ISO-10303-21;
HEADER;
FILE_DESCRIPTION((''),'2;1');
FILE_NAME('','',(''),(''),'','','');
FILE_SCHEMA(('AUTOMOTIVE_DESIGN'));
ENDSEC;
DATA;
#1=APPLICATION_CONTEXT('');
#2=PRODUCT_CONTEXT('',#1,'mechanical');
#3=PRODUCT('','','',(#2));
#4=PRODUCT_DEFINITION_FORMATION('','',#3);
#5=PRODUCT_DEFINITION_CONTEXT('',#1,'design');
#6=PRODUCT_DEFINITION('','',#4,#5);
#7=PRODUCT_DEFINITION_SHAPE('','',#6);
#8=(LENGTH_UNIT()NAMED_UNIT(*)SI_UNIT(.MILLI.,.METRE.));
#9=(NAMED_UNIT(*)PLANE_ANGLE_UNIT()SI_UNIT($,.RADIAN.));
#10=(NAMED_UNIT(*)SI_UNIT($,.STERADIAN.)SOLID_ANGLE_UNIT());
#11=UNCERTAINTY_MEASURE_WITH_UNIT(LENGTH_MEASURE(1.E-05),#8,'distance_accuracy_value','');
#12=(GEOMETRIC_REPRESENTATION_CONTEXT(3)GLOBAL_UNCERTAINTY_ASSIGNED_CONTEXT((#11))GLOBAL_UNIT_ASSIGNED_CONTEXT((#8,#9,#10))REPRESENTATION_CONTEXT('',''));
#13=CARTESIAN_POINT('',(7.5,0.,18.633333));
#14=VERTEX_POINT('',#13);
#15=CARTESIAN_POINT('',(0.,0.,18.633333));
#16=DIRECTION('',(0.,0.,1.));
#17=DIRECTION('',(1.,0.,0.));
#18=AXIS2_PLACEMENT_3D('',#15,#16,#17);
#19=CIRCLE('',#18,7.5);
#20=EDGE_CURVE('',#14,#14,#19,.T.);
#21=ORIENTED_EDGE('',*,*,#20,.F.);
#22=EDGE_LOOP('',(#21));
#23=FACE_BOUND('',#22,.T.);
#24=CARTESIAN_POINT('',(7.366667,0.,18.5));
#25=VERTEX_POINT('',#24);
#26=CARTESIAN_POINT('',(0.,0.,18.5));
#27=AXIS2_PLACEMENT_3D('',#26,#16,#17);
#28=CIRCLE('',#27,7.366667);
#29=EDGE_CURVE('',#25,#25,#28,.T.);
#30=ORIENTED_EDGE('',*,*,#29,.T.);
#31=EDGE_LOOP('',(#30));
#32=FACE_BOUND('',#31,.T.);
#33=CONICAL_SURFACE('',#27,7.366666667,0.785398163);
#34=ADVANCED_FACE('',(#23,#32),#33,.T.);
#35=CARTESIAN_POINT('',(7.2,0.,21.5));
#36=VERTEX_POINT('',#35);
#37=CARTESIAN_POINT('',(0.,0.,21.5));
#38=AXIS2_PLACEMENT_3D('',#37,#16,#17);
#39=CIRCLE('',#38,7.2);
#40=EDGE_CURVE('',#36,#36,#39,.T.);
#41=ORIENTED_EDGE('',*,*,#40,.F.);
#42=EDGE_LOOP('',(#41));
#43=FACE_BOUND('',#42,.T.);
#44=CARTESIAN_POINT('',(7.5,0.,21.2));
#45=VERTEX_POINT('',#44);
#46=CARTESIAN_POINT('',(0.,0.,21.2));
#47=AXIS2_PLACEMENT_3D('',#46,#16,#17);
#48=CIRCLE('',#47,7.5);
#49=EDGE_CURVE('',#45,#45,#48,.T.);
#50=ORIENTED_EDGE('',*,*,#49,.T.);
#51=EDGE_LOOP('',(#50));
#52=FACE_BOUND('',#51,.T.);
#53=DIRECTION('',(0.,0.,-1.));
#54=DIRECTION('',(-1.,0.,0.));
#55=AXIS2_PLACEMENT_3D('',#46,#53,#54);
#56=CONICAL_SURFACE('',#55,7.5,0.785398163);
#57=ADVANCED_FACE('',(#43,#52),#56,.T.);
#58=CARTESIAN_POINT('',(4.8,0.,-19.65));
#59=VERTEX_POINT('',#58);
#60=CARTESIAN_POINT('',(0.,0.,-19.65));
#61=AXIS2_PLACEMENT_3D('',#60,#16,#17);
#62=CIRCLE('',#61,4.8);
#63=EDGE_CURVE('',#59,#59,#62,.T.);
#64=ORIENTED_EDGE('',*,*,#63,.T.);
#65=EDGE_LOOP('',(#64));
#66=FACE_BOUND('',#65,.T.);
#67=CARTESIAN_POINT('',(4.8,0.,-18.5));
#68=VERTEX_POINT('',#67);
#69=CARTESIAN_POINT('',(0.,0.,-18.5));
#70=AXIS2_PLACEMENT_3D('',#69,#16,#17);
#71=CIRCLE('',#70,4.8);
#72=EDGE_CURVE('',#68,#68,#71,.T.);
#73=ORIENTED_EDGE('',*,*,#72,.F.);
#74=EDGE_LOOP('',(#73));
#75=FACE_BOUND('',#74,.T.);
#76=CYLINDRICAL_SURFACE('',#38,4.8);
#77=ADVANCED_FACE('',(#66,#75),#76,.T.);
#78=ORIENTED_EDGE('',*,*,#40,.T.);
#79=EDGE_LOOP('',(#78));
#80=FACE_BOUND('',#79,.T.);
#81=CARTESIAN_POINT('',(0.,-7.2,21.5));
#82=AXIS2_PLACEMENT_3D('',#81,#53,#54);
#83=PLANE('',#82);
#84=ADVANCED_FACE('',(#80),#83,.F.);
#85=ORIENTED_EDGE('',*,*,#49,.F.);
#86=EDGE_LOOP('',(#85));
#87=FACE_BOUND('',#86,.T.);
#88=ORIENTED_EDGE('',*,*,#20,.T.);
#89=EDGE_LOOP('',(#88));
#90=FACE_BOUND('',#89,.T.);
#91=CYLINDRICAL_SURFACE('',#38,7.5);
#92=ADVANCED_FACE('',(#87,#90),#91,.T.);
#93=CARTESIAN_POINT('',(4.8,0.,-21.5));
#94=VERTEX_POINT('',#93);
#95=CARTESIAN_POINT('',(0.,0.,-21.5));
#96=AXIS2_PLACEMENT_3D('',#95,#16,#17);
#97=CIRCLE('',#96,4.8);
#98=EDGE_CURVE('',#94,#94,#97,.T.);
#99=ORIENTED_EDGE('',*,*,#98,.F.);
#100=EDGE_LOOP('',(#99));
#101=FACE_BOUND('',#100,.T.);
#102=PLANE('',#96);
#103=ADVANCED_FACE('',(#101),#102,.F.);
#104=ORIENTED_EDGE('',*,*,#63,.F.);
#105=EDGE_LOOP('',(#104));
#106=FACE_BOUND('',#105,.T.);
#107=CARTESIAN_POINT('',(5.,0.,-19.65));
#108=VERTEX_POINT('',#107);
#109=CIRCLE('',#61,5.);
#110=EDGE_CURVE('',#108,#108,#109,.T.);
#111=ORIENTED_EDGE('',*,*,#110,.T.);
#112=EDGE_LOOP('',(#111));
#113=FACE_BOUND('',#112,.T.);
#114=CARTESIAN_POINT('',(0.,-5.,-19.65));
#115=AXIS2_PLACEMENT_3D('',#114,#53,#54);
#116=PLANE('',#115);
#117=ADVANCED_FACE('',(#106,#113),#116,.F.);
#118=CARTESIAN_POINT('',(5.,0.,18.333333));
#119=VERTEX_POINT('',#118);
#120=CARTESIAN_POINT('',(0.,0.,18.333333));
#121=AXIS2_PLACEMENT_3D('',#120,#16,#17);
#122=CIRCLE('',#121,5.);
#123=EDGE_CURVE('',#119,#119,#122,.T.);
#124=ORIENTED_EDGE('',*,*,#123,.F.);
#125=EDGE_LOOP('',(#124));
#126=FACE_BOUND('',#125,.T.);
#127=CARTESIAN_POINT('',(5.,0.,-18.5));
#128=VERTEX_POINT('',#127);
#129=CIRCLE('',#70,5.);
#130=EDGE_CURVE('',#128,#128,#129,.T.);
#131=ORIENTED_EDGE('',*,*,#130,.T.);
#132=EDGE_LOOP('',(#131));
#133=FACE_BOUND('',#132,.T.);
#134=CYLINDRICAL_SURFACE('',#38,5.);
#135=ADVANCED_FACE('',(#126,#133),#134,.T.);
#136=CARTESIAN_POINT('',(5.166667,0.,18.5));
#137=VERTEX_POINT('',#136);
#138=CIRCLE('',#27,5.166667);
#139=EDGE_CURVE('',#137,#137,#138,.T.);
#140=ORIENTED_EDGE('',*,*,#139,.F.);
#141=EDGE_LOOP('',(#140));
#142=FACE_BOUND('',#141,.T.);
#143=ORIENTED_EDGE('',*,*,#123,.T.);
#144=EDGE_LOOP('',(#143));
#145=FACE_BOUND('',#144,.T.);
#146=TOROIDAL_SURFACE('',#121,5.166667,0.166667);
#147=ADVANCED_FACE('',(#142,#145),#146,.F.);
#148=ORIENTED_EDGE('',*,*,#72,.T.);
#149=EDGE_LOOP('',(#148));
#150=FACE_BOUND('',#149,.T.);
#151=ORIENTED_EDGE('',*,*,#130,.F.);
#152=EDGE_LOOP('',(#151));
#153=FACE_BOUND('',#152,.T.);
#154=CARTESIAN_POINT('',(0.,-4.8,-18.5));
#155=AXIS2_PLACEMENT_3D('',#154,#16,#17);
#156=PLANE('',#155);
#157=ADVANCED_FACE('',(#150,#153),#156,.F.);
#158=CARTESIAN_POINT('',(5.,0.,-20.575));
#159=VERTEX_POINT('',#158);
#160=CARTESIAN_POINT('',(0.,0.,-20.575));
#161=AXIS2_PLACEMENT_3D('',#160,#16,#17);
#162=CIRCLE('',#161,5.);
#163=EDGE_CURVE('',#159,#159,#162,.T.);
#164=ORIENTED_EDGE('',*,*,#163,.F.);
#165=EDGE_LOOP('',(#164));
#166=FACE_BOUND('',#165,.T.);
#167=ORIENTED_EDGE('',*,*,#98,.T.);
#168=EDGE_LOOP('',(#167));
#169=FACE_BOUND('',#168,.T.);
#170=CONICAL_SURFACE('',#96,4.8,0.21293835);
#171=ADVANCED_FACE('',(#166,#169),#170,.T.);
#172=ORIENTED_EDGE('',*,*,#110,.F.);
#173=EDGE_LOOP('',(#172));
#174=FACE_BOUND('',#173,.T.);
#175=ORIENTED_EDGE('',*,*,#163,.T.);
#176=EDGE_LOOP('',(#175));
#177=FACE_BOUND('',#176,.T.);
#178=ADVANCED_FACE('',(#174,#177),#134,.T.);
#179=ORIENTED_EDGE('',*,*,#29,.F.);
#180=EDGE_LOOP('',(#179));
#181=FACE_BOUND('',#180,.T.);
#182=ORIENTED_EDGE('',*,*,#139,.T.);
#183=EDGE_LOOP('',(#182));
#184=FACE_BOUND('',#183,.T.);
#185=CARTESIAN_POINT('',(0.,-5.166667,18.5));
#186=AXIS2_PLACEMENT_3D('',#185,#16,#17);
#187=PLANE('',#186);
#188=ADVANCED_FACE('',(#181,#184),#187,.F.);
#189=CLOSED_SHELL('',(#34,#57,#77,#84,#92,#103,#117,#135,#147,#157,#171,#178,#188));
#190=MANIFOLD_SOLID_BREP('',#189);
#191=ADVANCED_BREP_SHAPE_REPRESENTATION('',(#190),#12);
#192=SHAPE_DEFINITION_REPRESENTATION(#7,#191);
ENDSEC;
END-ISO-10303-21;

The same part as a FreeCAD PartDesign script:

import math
import FreeCAD as App
import Part
import Sketcher
Q = App.Units.Quantity

doc = App.newDocument("Part")
params = doc.addObject("Spreadsheet::Sheet", "Params")
for row, (alias, value) in enumerate([
    ("sketch1_height", "43 mm"),
    ("sketch1_width", "4.8 mm"),
    ("sketch1_width2", "0.2 mm"),
    ("sketch1_width3", "2.2 mm"),
    ("sketch1_width4", "7.2 mm"),
    ("revolution_angle", "360 deg"),
], start=1):
    params.set(f"A{row}", alias)
    params.set(f"B{row}", "=" + value)
    params.setAlias(f"B{row}", alias)

body = doc.addObject("PartDesign::Body", "Body")

sketch1 = doc.addObject("Sketcher::SketchObject", "Sketch")
body.addObject(sketch1)
sketch1.AttachmentSupport = (doc.YZ_Plane, [""])
sketch1.MapMode = "FlatFace"
sketch1.addGeometry(Part.LineSegment(App.Vector(0, -21.5, 0), App.Vector(4.8, -21.5, 0)), False)
sketch1.addGeometry(Part.LineSegment(App.Vector(4.8, -21.5, 0), App.Vector(5, -20.57, 0)), False)
sketch1.addGeometry(Part.LineSegment(App.Vector(5, -20.57, 0), App.Vector(5, -19.65, 0)), False)
sketch1.addGeometry(Part.LineSegment(App.Vector(5, -19.65, 0), App.Vector(4.8, -19.65, 0)), False)
sketch1.addGeometry(Part.LineSegment(App.Vector(4.8, -19.65, 0), App.Vector(4.8, -18.5, 0)), False)
sketch1.addGeometry(Part.LineSegment(App.Vector(4.8, -18.5, 0), App.Vector(5, -18.5, 0)), False)
sketch1.addGeometry(Part.LineSegment(App.Vector(5, -18.5, 0), App.Vector(5, 18.33, 0)), False)
sketch1.addGeometry(Part.ArcOfCircle(Part.Circle(App.Vector(5.17, 18.33, 0), App.Vector(0, 0, 1), 0.17), math.radians(90), math.radians(180)), False)
sketch1.addGeometry(Part.LineSegment(App.Vector(5.17, 18.5, 0), App.Vector(7.37, 18.5, 0)), False)
sketch1.addGeometry(Part.LineSegment(App.Vector(7.37, 18.5, 0), App.Vector(7.5, 18.63, 0)), False)
sketch1.addGeometry(Part.LineSegment(App.Vector(7.5, 18.63, 0), App.Vector(7.5, 21.2, 0)), False)
sketch1.addGeometry(Part.LineSegment(App.Vector(7.5, 21.2, 0), App.Vector(7.2, 21.5, 0)), False)
sketch1.addGeometry(Part.LineSegment(App.Vector(7.2, 21.5, 0), App.Vector(0, 21.5, 0)), False)
sketch1.addGeometry(Part.LineSegment(App.Vector(0, 21.5, 0), App.Vector(0, -21.5, 0)), False)
sketch1.addConstraint(Sketcher.Constraint("Coincident", 0, 2, 1, 1))
sketch1.addConstraint(Sketcher.Constraint("Coincident", 1, 2, 2, 1))
sketch1.addConstraint(Sketcher.Constraint("Coincident", 2, 2, 3, 1))
sketch1.addConstraint(Sketcher.Constraint("Coincident", 3, 2, 4, 1))
sketch1.addConstraint(Sketcher.Constraint("Coincident", 4, 2, 5, 1))
sketch1.addConstraint(Sketcher.Constraint("Coincident", 5, 2, 6, 1))
sketch1.addConstraint(Sketcher.Constraint("Tangent", 6, 2, 7, 2))
sketch1.addConstraint(Sketcher.Constraint("Tangent", 7, 1, 8, 1))
sketch1.addConstraint(Sketcher.Constraint("Coincident", 8, 2, 9, 1))
sketch1.addConstraint(Sketcher.Constraint("Coincident", 9, 2, 10, 1))
sketch1.addConstraint(Sketcher.Constraint("Coincident", 10, 2, 11, 1))
sketch1.addConstraint(Sketcher.Constraint("Coincident", 11, 2, 12, 1))
sketch1.addConstraint(Sketcher.Constraint("Coincident", 12, 2, 13, 1))
sketch1.addConstraint(Sketcher.Constraint("Coincident", 13, 2, 0, 1))
sketch1.addConstraint(Sketcher.Constraint("Horizontal", 0))
sketch1.addConstraint(Sketcher.Constraint("Vertical", 2))
sketch1.addConstraint(Sketcher.Constraint("Horizontal", 3))
sketch1.addConstraint(Sketcher.Constraint("Vertical", 4))
sketch1.addConstraint(Sketcher.Constraint("Horizontal", 5))
sketch1.addConstraint(Sketcher.Constraint("Vertical", 6))
sketch1.addConstraint(Sketcher.Constraint("Horizontal", 8))
sketch1.addConstraint(Sketcher.Constraint("Vertical", 10))
sketch1.addConstraint(Sketcher.Constraint("Horizontal", 12))
sketch1.addConstraint(Sketcher.Constraint("Vertical", 13))
sketch1.addConstraint(Sketcher.Constraint("Symmetric", 12, 2, 13, 2, -1, 1))
sketch1.addConstraint(Sketcher.Constraint("Perpendicular", 9, 11))
sketch1.addConstraint(Sketcher.Constraint("Vertical", 0, 2, 3, 2))
sketch1.addConstraint(Sketcher.Constraint("Vertical", 2, 2, 5, 2))
sketch1.addConstraint(Sketcher.Constraint("DistanceY", 13, 2, 13, 1, Q("43 mm")))
sketch1.addConstraint(Sketcher.Constraint("Angle", 9, Q("45 deg")))
sketch1.addConstraint(Sketcher.Constraint("DistanceX", 0, 1, 0, 2, Q("4.8 mm")))
sketch1.addConstraint(Sketcher.Constraint("DistanceX", 3, 2, 3, 1, Q("0.2 mm")))
sketch1.addConstraint(Sketcher.Constraint("DistanceX", 8, 1, 8, 2, Q("2.2 mm")))
sketch1.addConstraint(Sketcher.Constraint("DistanceX", 12, 2, 12, 1, Q("7.2 mm")))
sketch1.addConstraint(Sketcher.Constraint("DistanceY", 0, 2, 4, 2, Q("3 mm")))
sketch1.addConstraint(Sketcher.Constraint("DistanceY", 5, 2, 7, 1, Q("37 mm")))
sketch1.addConstraint(Sketcher.Constraint("DistanceY", 4, 1, 4, 2, Q("1.15 mm")))
sketch1.addConstraint(Sketcher.Constraint("DistanceX", -1, 1, 9, 2, Q("7.5 mm")))
sketch1.addConstraint(Sketcher.Constraint("DistanceY", 2, 1, 2, 2, Q("0.925 mm")))
sketch1.addConstraint(Sketcher.Constraint("Radius", 7, Q("0.166667 mm")))
sketch1.setExpression("Constraints[28]", "Params.sketch1_height")
sketch1.setExpression("Constraints[30]", "Params.sketch1_width")
sketch1.setExpression("Constraints[31]", "Params.sketch1_width2")
sketch1.setExpression("Constraints[32]", "Params.sketch1_width3")
sketch1.setExpression("Constraints[33]", "Params.sketch1_width4")
revolution = doc.addObject("PartDesign::Revolution", "Revolution")
body.addObject(revolution)
revolution.Profile = sketch1
revolution.ReferenceAxis = (sketch1, ["V_Axis"])
revolution.setExpression("Angle", "Params.revolution_angle")

doc.recompute()
